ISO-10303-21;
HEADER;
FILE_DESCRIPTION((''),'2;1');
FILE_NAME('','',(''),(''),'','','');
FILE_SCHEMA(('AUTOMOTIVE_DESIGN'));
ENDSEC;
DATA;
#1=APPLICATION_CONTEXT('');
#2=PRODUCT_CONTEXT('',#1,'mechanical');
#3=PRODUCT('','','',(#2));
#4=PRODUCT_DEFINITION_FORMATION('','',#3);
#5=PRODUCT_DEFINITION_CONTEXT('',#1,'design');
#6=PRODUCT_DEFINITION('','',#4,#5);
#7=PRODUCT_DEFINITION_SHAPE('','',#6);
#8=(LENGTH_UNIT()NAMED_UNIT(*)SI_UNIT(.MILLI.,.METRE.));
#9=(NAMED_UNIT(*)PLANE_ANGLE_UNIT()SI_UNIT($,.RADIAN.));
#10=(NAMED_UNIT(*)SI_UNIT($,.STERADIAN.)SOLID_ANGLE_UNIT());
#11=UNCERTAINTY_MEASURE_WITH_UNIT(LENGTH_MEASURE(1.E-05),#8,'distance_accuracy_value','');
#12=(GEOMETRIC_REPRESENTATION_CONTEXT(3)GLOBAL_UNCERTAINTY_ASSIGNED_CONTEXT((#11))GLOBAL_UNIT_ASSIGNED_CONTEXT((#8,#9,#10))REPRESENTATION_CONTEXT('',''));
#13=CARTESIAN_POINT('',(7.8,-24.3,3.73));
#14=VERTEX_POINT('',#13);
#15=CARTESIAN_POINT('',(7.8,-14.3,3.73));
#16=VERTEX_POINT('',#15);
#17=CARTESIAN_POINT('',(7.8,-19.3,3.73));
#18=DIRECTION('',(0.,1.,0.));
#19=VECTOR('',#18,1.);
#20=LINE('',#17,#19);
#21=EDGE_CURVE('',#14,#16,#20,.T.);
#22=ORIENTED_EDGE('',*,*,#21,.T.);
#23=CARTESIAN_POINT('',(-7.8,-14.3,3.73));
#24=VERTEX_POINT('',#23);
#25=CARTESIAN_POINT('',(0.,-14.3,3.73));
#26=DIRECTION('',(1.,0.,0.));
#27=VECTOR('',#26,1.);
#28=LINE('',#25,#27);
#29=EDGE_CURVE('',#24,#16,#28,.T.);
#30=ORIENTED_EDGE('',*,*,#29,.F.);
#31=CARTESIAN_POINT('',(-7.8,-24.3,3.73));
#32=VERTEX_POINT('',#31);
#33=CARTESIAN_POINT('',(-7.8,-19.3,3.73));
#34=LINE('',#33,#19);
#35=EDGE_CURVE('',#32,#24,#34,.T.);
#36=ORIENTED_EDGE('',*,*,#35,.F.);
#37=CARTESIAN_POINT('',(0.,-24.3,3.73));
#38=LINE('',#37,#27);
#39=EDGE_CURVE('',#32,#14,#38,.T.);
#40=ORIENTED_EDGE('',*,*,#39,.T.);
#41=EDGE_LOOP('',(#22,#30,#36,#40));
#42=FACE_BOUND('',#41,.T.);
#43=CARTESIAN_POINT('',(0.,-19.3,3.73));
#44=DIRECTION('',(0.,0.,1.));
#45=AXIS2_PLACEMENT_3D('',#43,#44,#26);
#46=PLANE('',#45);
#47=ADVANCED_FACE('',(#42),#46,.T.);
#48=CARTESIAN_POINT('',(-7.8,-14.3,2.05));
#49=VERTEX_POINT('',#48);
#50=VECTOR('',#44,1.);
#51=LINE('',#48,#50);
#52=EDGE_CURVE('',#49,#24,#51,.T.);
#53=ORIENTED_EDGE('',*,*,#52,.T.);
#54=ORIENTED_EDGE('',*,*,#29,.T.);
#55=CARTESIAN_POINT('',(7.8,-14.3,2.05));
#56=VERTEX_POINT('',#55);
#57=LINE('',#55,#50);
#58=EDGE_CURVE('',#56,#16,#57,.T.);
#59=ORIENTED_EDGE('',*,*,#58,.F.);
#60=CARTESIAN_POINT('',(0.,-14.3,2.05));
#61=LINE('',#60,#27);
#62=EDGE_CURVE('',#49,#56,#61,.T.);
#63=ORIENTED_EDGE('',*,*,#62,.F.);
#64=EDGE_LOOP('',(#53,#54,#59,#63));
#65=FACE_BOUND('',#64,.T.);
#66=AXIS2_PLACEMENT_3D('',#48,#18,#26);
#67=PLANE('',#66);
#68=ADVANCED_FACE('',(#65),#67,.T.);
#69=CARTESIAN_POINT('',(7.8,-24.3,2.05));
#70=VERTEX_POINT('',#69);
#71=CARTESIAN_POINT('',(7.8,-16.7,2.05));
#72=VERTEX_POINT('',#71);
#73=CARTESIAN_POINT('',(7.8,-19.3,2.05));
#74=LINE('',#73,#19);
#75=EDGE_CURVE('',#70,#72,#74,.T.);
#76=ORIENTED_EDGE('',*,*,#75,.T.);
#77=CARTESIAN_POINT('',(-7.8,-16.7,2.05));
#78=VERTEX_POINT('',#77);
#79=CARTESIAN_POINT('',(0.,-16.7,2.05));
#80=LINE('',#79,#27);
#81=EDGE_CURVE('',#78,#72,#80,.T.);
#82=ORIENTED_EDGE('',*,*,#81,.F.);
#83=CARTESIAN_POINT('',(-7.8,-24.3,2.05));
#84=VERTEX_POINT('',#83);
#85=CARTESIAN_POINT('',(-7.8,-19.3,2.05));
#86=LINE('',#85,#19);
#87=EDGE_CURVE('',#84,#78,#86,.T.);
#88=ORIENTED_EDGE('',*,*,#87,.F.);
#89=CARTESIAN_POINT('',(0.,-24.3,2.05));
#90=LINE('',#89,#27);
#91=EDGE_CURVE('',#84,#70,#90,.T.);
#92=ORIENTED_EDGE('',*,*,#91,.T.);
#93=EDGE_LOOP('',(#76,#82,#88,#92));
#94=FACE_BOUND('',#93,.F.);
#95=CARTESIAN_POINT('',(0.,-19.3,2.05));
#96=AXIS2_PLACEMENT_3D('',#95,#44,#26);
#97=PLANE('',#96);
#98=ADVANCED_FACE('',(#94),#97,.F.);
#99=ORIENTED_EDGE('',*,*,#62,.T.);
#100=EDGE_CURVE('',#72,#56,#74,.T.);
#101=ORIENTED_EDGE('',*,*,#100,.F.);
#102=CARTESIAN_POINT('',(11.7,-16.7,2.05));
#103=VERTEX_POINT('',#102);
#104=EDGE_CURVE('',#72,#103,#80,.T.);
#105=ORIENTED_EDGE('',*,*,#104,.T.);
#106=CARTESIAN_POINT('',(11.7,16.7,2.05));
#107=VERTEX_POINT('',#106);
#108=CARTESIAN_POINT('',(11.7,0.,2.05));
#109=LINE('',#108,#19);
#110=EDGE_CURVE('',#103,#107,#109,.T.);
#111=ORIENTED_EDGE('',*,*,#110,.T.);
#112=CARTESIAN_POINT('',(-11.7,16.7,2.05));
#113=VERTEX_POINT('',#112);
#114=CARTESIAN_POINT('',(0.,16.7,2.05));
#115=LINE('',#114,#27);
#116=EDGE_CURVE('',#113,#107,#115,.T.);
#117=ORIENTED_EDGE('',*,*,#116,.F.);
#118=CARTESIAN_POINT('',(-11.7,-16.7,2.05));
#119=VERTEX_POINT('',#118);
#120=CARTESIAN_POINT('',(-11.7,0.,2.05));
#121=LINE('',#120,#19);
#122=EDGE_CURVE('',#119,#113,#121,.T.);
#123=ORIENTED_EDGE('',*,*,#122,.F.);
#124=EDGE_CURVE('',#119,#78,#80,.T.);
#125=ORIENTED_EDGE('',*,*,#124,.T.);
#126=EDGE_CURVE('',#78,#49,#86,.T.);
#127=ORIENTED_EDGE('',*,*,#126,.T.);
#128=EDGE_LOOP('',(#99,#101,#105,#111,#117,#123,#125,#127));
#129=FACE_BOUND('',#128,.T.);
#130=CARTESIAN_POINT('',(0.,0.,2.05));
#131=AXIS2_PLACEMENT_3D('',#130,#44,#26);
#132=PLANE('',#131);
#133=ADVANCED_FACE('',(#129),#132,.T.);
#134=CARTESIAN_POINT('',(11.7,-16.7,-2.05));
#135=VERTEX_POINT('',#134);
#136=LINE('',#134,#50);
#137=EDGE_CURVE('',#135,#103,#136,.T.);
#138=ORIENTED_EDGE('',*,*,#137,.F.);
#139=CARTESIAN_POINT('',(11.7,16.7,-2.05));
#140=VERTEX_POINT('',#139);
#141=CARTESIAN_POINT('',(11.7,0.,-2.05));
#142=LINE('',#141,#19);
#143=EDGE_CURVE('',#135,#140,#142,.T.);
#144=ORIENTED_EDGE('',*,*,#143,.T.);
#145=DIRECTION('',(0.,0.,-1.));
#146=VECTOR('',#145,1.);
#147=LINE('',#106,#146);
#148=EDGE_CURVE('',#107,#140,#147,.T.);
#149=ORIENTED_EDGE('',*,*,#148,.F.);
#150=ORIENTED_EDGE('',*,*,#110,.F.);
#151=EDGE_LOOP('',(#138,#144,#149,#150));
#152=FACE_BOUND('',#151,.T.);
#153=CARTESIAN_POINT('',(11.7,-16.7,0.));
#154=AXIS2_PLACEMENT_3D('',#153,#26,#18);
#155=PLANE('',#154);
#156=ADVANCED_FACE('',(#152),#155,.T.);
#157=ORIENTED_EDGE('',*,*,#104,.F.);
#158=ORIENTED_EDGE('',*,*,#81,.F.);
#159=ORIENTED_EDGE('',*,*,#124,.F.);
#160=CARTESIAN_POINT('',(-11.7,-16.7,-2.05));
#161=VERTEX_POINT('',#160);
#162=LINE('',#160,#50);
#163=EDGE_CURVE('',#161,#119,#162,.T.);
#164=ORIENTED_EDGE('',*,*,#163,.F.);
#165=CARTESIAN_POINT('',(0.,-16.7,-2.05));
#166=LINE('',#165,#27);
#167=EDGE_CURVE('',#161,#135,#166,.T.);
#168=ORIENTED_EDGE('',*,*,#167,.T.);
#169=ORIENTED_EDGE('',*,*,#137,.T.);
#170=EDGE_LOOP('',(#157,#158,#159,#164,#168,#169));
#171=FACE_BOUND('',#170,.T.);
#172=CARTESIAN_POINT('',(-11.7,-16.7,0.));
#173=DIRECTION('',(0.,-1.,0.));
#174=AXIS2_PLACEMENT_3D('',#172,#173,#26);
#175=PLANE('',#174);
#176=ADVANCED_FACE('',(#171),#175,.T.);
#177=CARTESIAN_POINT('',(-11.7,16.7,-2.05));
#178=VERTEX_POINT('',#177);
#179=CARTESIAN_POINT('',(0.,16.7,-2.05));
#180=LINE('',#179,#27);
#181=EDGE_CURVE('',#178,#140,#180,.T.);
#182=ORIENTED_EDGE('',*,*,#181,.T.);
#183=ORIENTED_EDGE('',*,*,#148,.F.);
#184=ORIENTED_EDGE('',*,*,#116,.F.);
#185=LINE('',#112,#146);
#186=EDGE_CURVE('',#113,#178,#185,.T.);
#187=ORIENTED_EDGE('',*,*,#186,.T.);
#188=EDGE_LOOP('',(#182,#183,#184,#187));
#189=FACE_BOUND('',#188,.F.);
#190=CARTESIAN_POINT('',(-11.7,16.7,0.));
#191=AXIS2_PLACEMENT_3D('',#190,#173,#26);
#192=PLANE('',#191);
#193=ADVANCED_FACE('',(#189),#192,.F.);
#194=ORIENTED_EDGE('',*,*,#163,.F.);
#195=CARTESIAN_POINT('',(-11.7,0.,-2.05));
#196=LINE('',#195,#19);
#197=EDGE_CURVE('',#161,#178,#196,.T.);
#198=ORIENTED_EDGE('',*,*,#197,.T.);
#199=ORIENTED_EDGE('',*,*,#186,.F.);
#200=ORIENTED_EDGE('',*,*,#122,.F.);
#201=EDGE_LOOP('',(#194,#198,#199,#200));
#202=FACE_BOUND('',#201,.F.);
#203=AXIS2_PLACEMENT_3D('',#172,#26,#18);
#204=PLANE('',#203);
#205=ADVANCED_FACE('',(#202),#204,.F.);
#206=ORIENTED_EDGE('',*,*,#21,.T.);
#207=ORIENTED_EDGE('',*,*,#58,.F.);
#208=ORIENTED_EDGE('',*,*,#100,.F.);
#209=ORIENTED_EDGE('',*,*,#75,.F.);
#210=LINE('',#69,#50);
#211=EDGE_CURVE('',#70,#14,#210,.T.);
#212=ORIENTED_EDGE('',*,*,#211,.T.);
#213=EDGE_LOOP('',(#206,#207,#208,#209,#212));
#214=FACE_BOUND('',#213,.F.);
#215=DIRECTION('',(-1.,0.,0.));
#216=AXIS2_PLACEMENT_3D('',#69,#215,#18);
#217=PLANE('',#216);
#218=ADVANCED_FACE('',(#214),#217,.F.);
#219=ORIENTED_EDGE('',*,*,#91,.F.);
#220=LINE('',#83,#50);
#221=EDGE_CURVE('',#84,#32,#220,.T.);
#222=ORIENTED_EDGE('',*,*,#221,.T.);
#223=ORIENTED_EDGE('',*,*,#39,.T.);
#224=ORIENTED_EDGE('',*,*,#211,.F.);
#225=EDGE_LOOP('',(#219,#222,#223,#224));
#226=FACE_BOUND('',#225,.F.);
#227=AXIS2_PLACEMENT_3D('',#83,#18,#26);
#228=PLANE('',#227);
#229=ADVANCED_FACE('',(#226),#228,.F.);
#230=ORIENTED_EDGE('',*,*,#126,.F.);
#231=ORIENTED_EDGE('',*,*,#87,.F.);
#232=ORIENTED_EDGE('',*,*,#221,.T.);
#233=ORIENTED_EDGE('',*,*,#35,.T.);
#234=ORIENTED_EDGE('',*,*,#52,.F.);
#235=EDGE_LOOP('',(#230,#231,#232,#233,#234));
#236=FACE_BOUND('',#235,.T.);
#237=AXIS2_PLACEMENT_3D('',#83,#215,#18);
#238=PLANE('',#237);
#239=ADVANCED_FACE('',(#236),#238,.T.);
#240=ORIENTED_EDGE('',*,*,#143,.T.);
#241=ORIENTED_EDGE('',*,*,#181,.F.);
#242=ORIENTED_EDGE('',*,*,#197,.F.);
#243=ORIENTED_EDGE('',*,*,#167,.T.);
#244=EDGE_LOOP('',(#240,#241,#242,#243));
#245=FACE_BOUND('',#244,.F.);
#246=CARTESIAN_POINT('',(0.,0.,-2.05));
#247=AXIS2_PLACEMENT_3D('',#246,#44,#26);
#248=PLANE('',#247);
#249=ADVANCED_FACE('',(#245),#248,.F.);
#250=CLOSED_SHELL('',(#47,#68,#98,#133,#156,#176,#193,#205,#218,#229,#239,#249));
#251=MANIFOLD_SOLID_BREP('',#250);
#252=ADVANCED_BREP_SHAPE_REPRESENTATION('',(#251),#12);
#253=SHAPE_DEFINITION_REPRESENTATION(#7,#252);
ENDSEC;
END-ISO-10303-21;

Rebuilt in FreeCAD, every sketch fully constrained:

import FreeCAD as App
import Part
import Sketcher
from FreeCAD import Vector
Q = App.Units.Quantity

doc = App.newDocument("Part")
params = doc.addObject("Spreadsheet::Sheet", "Params")
for row, (alias, value) in enumerate([
    ("sketch1_width", "23.4 mm"),
    ("sketch1_height", "33.4 mm"),
    ("pad1_length", "4.1 mm"),
    ("sketch2_height", "10 mm"),
    ("sketch2_width", "15.6 mm"),
    ("pad2_length", "1.68 mm"),
], start=1):
    params.set(f"A{row}", alias)
    params.set(f"B{row}", "=" + value)
    params.setAlias(f"B{row}", alias)

body = doc.addObject("PartDesign::Body", "Body")

sketch1 = body.newObject("Sketcher::SketchObject", "Sketch")
sketch1.AttachmentSupport = (doc.getObject("XY_Plane"), [""])
sketch1.MapMode = "FlatFace"
sketch1.addGeometry(Part.LineSegment(Vector(-12, 17, 0), Vector(-12, -17, 0)), False)
sketch1.addGeometry(Part.LineSegment(Vector(-12, -17, 0), Vector(12, -17, 0)), False)
sketch1.addGeometry(Part.LineSegment(Vector(12, -17, 0), Vector(12, 17, 0)), False)
sketch1.addGeometry(Part.LineSegment(Vector(12, 17, 0), Vector(-12, 17, 0)), False)
sketch1.addConstraint(Sketcher.Constraint("Coincident", 0, 2, 1, 1))
sketch1.addConstraint(Sketcher.Constraint("Coincident", 1, 2, 2, 1))
sketch1.addConstraint(Sketcher.Constraint("Coincident", 2, 2, 3, 1))
sketch1.addConstraint(Sketcher.Constraint("Coincident", 3, 2, 0, 1))
sketch1.addConstraint(Sketcher.Constraint("Vertical", 0))
sketch1.addConstraint(Sketcher.Constraint("Horizontal", 1))
sketch1.addConstraint(Sketcher.Constraint("Vertical", 2))
sketch1.addConstraint(Sketcher.Constraint("Horizontal", 3))
sketch1.addConstraint(Sketcher.Constraint("Symmetric", 0, 2, 2, 2, -1, 1))
sketch1.addConstraint(Sketcher.Constraint("DistanceX", 1, 1, 1, 2, Q("23.4 mm")))
sketch1.addConstraint(Sketcher.Constraint("DistanceY", 0, 2, 0, 1, Q("33.4 mm")))
sketch1.setExpression("Constraints[9]", "Params.sketch1_width")
sketch1.setExpression("Constraints[10]", "Params.sketch1_height")
pad1 = body.newObject("PartDesign::Pad", "Pad")
pad1.Profile = sketch1
pad1.setExpression("Length", "Params.pad1_length")
pad1.Midplane = True

sketch2 = body.newObject("Sketcher::SketchObject", "Sketch001")
sketch2.AttachmentSupport = (doc.getObject("XY_Plane"), [""])
sketch2.MapMode = "FlatFace"
sketch2.AttachmentOffset = App.Placement(Vector(0, 0, 2.05), App.Rotation())
sketch2.addGeometry(Part.LineSegment(Vector(-8, -14, 0), Vector(-8, -24, 0)), False)
sketch2.addGeometry(Part.LineSegment(Vector(-8, -24, 0), Vector(8, -24, 0)), False)
sketch2.addGeometry(Part.LineSegment(Vector(8, -24, 0), Vector(8, -14, 0)), False)
sketch2.addGeometry(Part.LineSegment(Vector(8, -14, 0), Vector(-8, -14, 0)), False)
sketch2.addConstraint(Sketcher.Constraint("Coincident", 0, 2, 1, 1))
sketch2.addConstraint(Sketcher.Constraint("Coincident", 1, 2, 2, 1))
sketch2.addConstraint(Sketcher.Constraint("Coincident", 2, 2, 3, 1))
sketch2.addConstraint(Sketcher.Constraint("Coincident", 3, 2, 0, 1))
sketch2.addConstraint(Sketcher.Constraint("Vertical", 0))
sketch2.addConstraint(Sketcher.Constraint("Horizontal", 1))
sketch2.addConstraint(Sketcher.Constraint("Vertical", 2))
sketch2.addConstraint(Sketcher.Constraint("Horizontal", 3))
sketch2.addConstraint(Sketcher.Constraint("DistanceY", 0, 2, 0, 1, Q("10 mm")))
sketch2.addConstraint(Sketcher.Constraint("DistanceX", 1, 1, 1, 2, Q("15.6 mm")))
sketch2.addConstraint(Sketcher.Constraint("DistanceX", 0, 2, -1, 1, Q("7.8 mm")))
sketch2.addConstraint(Sketcher.Constraint("DistanceY", 0, 2, -1, 1, Q("24.3 mm")))
sketch2.setExpression("Constraints[8]", "Params.sketch2_height")
sketch2.setExpression("Constraints[9]", "Params.sketch2_width")
pad2 = body.newObject("PartDesign::Pad", "Pad001")
pad2.Profile = sketch2
pad2.setExpression("Length", "Params.pad2_length")

doc.recompute()
